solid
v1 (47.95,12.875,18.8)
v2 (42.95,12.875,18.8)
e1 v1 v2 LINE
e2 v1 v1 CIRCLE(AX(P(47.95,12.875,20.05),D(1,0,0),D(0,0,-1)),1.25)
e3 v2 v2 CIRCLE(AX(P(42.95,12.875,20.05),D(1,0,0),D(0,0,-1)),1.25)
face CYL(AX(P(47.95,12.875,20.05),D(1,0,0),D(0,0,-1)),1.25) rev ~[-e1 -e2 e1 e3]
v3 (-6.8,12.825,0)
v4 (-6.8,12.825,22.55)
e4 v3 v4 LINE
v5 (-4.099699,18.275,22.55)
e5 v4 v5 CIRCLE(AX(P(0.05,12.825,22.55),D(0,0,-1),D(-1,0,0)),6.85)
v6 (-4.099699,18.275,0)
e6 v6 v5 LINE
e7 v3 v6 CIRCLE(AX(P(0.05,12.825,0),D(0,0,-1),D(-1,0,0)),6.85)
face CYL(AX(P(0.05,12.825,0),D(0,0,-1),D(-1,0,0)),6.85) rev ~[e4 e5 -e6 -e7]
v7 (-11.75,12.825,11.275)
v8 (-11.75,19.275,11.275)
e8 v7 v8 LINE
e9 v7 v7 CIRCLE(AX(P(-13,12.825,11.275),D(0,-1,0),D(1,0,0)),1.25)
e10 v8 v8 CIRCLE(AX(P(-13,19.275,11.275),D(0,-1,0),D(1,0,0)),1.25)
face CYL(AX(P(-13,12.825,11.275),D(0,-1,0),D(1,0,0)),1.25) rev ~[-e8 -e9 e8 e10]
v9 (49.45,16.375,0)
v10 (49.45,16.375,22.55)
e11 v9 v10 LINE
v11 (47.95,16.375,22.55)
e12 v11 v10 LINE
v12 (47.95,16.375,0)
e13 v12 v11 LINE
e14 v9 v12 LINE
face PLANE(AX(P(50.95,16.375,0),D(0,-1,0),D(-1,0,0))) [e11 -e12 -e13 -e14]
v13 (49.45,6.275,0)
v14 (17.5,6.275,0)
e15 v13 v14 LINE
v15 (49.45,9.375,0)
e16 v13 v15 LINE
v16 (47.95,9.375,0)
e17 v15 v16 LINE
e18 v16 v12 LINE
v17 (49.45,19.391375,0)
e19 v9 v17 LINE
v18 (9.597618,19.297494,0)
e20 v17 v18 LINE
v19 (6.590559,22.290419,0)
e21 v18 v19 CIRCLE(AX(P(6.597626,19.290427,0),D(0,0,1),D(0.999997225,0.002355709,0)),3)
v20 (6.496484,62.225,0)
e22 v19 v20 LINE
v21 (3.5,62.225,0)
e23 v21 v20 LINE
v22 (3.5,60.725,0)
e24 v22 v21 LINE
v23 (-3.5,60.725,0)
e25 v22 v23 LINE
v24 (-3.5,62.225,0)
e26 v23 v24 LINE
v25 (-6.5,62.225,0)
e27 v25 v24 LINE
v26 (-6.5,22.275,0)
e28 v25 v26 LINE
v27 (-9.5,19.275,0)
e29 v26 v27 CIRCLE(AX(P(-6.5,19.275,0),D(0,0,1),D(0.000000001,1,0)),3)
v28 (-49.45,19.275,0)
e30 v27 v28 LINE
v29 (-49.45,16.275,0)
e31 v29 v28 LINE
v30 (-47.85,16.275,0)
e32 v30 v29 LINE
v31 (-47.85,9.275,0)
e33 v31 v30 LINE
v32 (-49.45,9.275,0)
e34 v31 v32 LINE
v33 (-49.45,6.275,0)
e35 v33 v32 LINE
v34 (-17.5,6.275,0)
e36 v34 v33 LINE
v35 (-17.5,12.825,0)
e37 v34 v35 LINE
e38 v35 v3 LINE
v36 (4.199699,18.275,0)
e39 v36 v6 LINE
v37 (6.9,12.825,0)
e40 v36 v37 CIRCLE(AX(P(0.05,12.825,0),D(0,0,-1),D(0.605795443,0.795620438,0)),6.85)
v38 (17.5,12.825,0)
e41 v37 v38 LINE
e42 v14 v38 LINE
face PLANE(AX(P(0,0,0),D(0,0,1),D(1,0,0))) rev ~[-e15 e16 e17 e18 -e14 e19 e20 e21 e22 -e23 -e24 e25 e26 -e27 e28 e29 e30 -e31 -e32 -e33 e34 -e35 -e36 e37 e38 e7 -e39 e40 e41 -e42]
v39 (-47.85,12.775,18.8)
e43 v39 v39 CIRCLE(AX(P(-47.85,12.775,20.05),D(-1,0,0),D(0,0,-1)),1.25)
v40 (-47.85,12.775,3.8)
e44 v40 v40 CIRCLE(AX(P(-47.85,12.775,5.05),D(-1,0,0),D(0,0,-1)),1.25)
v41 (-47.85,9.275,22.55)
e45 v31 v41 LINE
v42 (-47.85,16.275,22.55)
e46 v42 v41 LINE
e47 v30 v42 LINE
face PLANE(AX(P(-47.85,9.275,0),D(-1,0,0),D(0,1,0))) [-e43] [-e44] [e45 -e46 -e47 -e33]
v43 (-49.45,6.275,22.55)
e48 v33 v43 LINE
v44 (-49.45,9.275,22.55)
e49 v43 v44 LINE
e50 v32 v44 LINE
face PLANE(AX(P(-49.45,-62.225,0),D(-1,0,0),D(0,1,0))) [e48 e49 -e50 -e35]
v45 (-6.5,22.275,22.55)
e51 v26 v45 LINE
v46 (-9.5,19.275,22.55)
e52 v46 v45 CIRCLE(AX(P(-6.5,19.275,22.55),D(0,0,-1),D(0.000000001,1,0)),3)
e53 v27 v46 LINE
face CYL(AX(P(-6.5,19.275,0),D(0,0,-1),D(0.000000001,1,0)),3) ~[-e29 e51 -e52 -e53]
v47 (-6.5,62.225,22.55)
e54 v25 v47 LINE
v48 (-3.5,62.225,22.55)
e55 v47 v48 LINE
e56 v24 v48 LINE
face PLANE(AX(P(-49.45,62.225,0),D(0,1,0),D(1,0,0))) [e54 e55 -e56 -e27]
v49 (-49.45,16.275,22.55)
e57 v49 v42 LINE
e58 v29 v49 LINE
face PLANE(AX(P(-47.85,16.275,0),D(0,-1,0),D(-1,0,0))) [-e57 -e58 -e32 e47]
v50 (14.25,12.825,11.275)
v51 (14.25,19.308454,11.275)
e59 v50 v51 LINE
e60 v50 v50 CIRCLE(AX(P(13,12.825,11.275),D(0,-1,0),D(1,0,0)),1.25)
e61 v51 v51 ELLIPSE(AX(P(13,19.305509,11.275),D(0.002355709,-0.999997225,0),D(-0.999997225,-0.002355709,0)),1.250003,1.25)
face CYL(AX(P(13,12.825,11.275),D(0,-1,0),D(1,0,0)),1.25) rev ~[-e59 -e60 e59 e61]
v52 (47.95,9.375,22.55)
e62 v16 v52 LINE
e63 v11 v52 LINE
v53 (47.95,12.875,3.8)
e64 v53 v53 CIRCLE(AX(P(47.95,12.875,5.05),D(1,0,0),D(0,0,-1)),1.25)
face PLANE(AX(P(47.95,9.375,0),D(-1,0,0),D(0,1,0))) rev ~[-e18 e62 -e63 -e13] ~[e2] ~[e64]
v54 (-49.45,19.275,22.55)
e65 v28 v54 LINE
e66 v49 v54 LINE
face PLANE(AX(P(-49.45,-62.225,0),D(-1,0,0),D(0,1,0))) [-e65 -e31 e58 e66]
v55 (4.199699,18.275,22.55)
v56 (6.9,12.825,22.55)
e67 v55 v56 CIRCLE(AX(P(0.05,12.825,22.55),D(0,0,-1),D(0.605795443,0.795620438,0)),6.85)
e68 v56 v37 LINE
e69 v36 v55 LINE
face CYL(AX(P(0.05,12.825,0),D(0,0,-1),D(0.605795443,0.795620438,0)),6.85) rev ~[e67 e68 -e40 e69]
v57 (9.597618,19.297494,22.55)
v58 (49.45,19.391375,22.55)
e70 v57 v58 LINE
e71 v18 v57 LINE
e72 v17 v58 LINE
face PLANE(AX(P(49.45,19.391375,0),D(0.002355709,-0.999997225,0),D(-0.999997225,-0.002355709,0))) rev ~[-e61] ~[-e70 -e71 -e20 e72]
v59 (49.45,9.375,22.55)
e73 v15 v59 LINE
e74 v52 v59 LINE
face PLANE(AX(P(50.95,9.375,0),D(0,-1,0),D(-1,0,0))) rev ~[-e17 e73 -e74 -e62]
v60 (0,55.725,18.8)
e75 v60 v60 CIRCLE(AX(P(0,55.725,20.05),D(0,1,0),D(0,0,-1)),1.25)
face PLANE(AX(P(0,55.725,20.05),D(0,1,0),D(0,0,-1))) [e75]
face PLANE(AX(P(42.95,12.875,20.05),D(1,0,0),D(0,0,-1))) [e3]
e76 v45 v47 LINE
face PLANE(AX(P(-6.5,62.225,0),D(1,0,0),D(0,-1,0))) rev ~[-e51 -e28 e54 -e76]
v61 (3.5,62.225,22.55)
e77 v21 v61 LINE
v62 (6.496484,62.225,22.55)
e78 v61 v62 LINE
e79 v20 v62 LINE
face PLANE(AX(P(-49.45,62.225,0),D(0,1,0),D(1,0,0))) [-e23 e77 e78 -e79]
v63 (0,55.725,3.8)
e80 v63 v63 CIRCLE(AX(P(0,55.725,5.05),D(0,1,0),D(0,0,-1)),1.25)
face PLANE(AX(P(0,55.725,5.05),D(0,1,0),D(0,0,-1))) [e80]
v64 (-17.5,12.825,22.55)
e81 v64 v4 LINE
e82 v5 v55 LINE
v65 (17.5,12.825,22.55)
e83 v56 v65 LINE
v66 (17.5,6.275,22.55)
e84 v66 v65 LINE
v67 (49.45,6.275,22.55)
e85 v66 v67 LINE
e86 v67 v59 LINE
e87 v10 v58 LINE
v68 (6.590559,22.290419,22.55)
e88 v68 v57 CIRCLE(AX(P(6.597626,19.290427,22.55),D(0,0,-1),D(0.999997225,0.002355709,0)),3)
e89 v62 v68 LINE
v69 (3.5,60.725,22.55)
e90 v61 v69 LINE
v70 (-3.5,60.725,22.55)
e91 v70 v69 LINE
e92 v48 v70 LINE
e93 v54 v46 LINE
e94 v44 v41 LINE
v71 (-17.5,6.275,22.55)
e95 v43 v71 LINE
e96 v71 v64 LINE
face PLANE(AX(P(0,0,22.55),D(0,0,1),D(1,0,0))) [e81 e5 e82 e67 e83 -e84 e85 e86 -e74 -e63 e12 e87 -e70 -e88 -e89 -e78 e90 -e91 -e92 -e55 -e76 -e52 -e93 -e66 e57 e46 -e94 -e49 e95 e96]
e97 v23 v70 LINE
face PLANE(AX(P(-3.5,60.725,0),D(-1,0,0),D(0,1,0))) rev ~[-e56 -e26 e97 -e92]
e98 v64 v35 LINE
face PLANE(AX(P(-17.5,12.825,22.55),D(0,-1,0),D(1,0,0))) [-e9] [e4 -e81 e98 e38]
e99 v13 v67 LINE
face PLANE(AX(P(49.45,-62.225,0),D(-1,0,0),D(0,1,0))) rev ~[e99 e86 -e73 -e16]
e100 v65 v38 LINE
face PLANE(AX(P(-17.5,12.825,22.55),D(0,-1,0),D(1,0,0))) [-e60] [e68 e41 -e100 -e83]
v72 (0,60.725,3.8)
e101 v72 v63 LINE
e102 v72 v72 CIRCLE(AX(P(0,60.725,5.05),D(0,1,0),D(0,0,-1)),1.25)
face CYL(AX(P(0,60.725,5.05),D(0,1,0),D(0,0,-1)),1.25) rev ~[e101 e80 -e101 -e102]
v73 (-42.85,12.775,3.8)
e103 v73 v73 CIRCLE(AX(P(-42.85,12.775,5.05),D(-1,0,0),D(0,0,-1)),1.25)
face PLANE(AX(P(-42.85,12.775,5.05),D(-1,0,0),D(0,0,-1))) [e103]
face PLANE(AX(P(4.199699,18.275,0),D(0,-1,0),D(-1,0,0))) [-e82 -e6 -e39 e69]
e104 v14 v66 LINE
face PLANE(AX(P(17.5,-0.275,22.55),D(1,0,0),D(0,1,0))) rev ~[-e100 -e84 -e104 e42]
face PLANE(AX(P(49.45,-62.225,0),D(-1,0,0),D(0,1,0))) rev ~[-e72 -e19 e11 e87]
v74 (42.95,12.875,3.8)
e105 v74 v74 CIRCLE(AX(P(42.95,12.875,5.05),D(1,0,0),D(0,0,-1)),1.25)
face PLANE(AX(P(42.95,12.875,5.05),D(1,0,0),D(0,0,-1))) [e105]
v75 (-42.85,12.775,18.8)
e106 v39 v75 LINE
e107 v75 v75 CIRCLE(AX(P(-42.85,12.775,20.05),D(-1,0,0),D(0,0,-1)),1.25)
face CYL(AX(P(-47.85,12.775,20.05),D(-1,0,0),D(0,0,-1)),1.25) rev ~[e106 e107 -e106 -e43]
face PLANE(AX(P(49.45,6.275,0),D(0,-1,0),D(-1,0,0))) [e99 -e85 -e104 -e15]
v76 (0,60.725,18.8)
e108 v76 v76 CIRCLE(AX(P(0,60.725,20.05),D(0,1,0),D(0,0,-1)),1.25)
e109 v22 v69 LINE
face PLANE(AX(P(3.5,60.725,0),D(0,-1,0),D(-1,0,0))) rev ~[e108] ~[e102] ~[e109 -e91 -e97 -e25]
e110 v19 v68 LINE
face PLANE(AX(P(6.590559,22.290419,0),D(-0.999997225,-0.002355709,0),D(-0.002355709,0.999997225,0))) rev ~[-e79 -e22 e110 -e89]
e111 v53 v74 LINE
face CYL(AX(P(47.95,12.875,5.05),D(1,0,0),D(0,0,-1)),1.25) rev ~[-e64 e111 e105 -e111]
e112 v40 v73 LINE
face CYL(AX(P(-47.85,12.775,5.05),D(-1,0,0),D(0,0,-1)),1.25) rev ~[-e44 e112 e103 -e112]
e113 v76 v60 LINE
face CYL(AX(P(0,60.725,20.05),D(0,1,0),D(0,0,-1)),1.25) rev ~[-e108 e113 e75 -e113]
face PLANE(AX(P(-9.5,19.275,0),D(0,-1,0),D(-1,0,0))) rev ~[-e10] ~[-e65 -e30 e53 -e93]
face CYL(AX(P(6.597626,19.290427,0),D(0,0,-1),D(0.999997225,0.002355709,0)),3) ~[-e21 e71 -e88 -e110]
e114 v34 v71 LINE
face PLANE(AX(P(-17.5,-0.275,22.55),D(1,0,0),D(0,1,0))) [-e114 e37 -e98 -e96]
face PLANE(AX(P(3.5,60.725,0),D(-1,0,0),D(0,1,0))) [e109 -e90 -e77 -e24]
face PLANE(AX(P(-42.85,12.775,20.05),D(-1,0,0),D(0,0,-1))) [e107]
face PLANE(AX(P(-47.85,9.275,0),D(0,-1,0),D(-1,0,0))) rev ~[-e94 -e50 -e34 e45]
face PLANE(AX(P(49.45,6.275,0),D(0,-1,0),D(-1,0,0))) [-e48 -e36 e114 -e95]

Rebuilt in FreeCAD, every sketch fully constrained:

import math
import FreeCAD as App
import Part
import Sketcher


def add_polygon(sketch, points):
    """Adds a closed chain of lines whose ends are joined by coincident constraints."""
    first, n = sketch.GeometryCount, len(points)
    for a, b in zip(points, points[1:] + points[:1]):
        sketch.addGeometry(Part.LineSegment(App.Vector(*a, 0), App.Vector(*b, 0)), False)
    for i in range(n):
        sketch.addConstraint(Sketcher.Constraint("Coincident", first + i, 2, first + (i + 1) % n, 1))

doc = App.newDocument("Part")
params = doc.addObject("Spreadsheet::Sheet", "Params")
for row, (alias, value) in enumerate([
    ("sketch1_width", "98.9 mm"),
    ("sketch1_height", "124.45 mm"),
    ("pad1_length", "22.55 mm"),
    ("sketch2_width", "7 mm"),
    ("sketch2_width2", "3 mm"),
    ("pocket1_length", "63 mm"),
    ("sketch3_radius", "6.85 mm"),
    ("pocket2_length", "63 mm"),
    ("sketch4_radius", "3 mm"),
    ("sketch4_width", "98.9 mm"),
    ("sketch4_height", "68.5 mm"),
    ("sketch4_width2", "42.95 mm"),
    ("pocket3_length", "63 mm"),
    ("sketch5_width", "22.55 mm"),
    ("pocket4_length", "63 mm"),
    ("sketch6_width", "35 mm"),
    ("sketch6_height", "13.1 mm"),
    ("sketch7_diameter", "2.5 mm"),
    ("pocket6_length", "10 mm"),
    ("sketch8_diameter", "2.5 mm"),
    ("pocket7_length", "5 mm"),
], start=1):
    params.set(f"A{row}", alias)
    params.set(f"B{row}", "=" + value)
    params.setAlias(f"B{row}", alias)

body = doc.addObject("PartDesign::Body", "Body")
body.AllowCompound = True

# Sketch on XY plane
sketch1 = body.newObject("Sketcher::SketchObject", "Sketch")
sketch1.AttachmentSupport = (doc.getObject("XY_Plane"), [""])
sketch1.MapMode = "FlatFace"
add_polygon(sketch1, [(-49, 62), (-49, -62), (49, -62), (49, 62)])  # lines 0-3
sketch1.addConstraint([
    Sketcher.Constraint("Vertical", 0),
    Sketcher.Constraint("Horizontal", 1),
    Sketcher.Constraint("Vertical", 2),
    Sketcher.Constraint("Horizontal", 3),
    Sketcher.Constraint("Symmetric", 0, 2, 2, 2, -1, 1),
    Sketcher.Constraint("DistanceX", 1, 1, 1, 2, 98.9),
    Sketcher.Constraint("DistanceY", 0, 2, 0, 1, 124.45),
])
sketch1.setExpression("Constraints[9]", "Params.sketch1_width")
sketch1.setExpression("Constraints[10]", "Params.sketch1_height")
pad1 = body.newObject("PartDesign::Pad", "Pad")
pad1.Profile = sketch1
pad1.setExpression("Length", "Params.pad1_length")

# Sketch on XY plane
sketch2 = body.newObject("Sketcher::SketchObject", "Sketch001")
sketch2.AttachmentSupport = (doc.getObject("XY_Plane"), [""])
sketch2.MapMode = "FlatFace"
add_polygon(sketch2, [(3.5, 63.7), (3.5, 60.7), (-3.5, 60.7), (-3.5, 63.7)])  # lines 0-3
add_polygon(sketch2, [(-47.9, 16.3), (-47.9, 9.3), (-50.9, 9.3), (-50.9, 16.3)])  # lines 4-7
add_polygon(sketch2, [(51, 16.4), (51, 9.4), (48, 9.4), (48, 16.4)])  # lines 8-11
sketch2.addConstraint([
    Sketcher.Constraint("Vertical", 0),
    Sketcher.Constraint("Horizontal", 1),
    Sketcher.Constraint("Vertical", 2),
    Sketcher.Constraint("Horizontal", 3),
    Sketcher.Constraint("Vertical", 4),
    Sketcher.Constraint("Horizontal", 5),
    Sketcher.Constraint("Vertical", 6),
    Sketcher.Constraint("Horizontal", 7),
    Sketcher.Constraint("Vertical", 8),
    Sketcher.Constraint("Horizontal", 9),
    Sketcher.Constraint("Vertical", 10),
    Sketcher.Constraint("Horizontal", 11),
    Sketcher.Constraint("Equal", 7, 9),
    Sketcher.Constraint("Equal", 11, 0),
    Sketcher.Constraint("Equal", 3, 4),
    Sketcher.Constraint("Equal", 6, 8),
    Sketcher.Constraint("DistanceX", 1, 2, 1, 1, 7.0),
    Sketcher.Constraint("DistanceX", 5, 2, 5, 1, 3.0),
    Sketcher.Constraint("DistanceX", -1, 1, 0, 2, 3.5),
    Sketcher.Constraint("DistanceX", 4, 2, 8, 2, 98.8),
    Sketcher.Constraint("DistanceY", 4, 2, 8, 2, 0.1),
    Sketcher.Constraint("DistanceX", 4, 2, -1, 1, 47.85),
    Sketcher.Constraint("DistanceY", 4, 2, 1, 2, 51.45),
    Sketcher.Constraint("DistanceY", -1, 1, 0, 2, 60.725),
])
sketch2.setExpression("Constraints[28]", "Params.sketch2_width")
sketch2.setExpression("Constraints[29]", "Params.sketch2_width2")
pocket1 = body.newObject("PartDesign::Pocket", "Pocket")
pocket1.Profile = sketch2
pocket1.setExpression("Length", "Params.pocket1_length")
pocket1.Reversed = True

# Sketch on XY plane
sketch3 = body.newObject("Sketcher::SketchObject", "Sketch002")
sketch3.AttachmentSupport = (doc.getObject("XY_Plane"), [""])
sketch3.MapMode = "FlatFace"
sketch3.addGeometry([
    Part.LineSegment(App.Vector(4, 7, 0), App.Vector(-4, 7, 0)),  # 0
    Part.ArcOfCircle(Part.Circle(App.Vector(0, 13, 0), App.Vector(0, 0, 1), 7), math.radians(180), math.radians(233)),  # 1
    Part.ArcOfCircle(Part.Circle(App.Vector(0, 13, 0), App.Vector(0, 0, 1), 7), math.radians(127), math.radians(180)),  # 2
    Part.LineSegment(App.Vector(-4, 18, 0), App.Vector(4, 18, 0)),  # 3
    Part.ArcOfCircle(Part.Circle(App.Vector(0, 13, 0), App.Vector(0, 0, 1), 7), math.radians(-53), math.radians(53)),  # 4
], False)
sketch3.addConstraint([
    Sketcher.Constraint("Coincident", 0, 2, 1, 2),
    Sketcher.Constraint("Tangent", 1, 1, 2, 2),
    Sketcher.Constraint("Coincident", 2, 1, 3, 1),
    Sketcher.Constraint("Coincident", 3, 2, 4, 2),
    Sketcher.Constraint("Coincident", 4, 1, 0, 1),
    Sketcher.Constraint("Horizontal", 0),
    Sketcher.Constraint("Horizontal", 3),
    Sketcher.Constraint("Coincident", 4, 3, 1, 3),
    Sketcher.Constraint("Equal", 1, 2),
    Sketcher.Constraint("Equal", 2, 4),
    Sketcher.Constraint("Horizontal", 4, 3, 1, 1),
    Sketcher.Constraint("Vertical", 0, 2, 2, 1),
    Sketcher.Constraint("Radius", 1, 6.85),
    Sketcher.Constraint("DistanceX", 1, 1, -1, 1, 6.8),
    Sketcher.Constraint("DistanceY", 0, 2, 2, 1, 10.9),
    Sketcher.Constraint("DistanceY", -1, 1, 1, 3, 12.825),
])
sketch3.setExpression("Constraints[12]", "Params.sketch3_radius")
pocket2 = body.newObject("PartDesign::Pocket", "Pocket001")
pocket2.Profile = sketch3
pocket2.setExpression("Length", "Params.pocket2_length")
pocket2.Reversed = True

# Sketch on XY plane
sketch4 = body.newObject("Sketcher::SketchObject", "Sketch003")
sketch4.AttachmentSupport = (doc.getObject("XY_Plane"), [""])
sketch4.MapMode = "FlatFace"
sketch4.addGeometry(Part.LineSegment(App.Vector(-49.5, 19.3, 0), App.Vector(-49.5, 62.2, 0)), False)  # 0
sketch4.addGeometry(Part.LineSegment(App.Vector(-49.5, 62.2, 0), App.Vector(-6.5, 62.2, 0)), False)  # 1
sketch4.addGeometry(Part.LineSegment(App.Vector(-6.5, 62.2, 0), App.Vector(-6.5, 22.3, 0)), False)  # 2
sketch4.addGeometry(Part.ArcOfCircle(Part.Circle(App.Vector(-6.5, 19.3, 0), App.Vector(0, 0, 1), 3), math.radians(90), math.radians(180)), False)  # 3
sketch4.addGeometry(Part.LineSegment(App.Vector(-9.5, 19.3, 0), App.Vector(-49.5, 19.3, 0)), False)  # 4
sketch4.addGeometry(Part.LineSegment(App.Vector(49.5, 60.8, 0), App.Vector(49.5, 19.4, 0)), False)  # 5
sketch4.addGeometry(Part.LineSegment(App.Vector(49.5, 19.4, 0), App.Vector(9.6, 19.3, 0)), False)  # 6
sketch4.addGeometry(Part.ArcOfCircle(Part.Circle(App.Vector(6.6, 19.3, 0), App.Vector(0, 0, 1), 3), math.radians(0), math.radians(90)), False)  # 7
sketch4.addGeometry(Part.LineSegment(App.Vector(6.6, 22.3, 0), App.Vector(6.5, 62.2, 0)), False)  # 8
sketch4.addGeometry(Part.LineSegment(App.Vector(6.5, 62.2, 0), App.Vector(49.4, 62.2, 0)), False)  # 9
sketch4.addGeometry(Part.LineSegment(App.Vector(49.4, 62.2, 0), App.Vector(49.5, 60.8, 0)), False)  # 10
add_polygon(sketch4, [(49.5, 6.3), (49.5, -62.2), (-49.5, -62.2), (-49.5, 6.3)])  # lines 11-14
sketch4.addConstraint([
    Sketcher.Constraint("Coincident", 0, 2, 1, 1),
    Sketcher.Constraint("Coincident", 1, 2, 2, 1),
    Sketcher.Constraint("Coincident", 2, 2, 3, 1),
    Sketcher.Constraint("Coincident", 3, 2, 4, 1),
    Sketcher.Constraint("Coincident", 4, 2, 0, 1),
    Sketcher.Constraint("Coincident", 5, 2, 6, 1),
    Sketcher.Constraint("Coincident", 6, 2, 7, 1),
    Sketcher.Constraint("Coincident", 7, 2, 8, 1),
    Sketcher.Constraint("Coincident", 8, 2, 9, 1),
    Sketcher.Constraint("Coincident", 9, 2, 10, 1),
    Sketcher.Constraint("Coincident", 10, 2, 5, 1),
    Sketcher.Constraint("Vertical", 0),
    Sketcher.Constraint("Horizontal", 1),
    Sketcher.Constraint("Vertical", 2),
    Sketcher.Constraint("Horizontal", 4),
    Sketcher.Constraint("Vertical", 5),
    Sketcher.Constraint("Horizontal", 9),
    Sketcher.Constraint("Vertical", 11),
    Sketcher.Constraint("Horizontal", 12),
    Sketcher.Constraint("Vertical", 13),
    Sketcher.Constraint("Horizontal", 14),
    Sketcher.Constraint("Equal", 3, 7),
    Sketcher.Constraint("Symmetric", 0, 2, 11, 2, -1, 1),
    Sketcher.Constraint("Perpendicular", 6, 8),
    Sketcher.Constraint("Parallel", 8, 10),
    Sketcher.Constraint("Horizontal", 1, 2, 8, 2),
    Sketcher.Constraint("Vertical", 3, 3, 1, 2),
    Sketcher.Constraint("Vertical", 10, 2, 11, 2),
    Sketcher.Constraint("Vertical", 4, 2, 12, 2),
    Sketcher.Constraint("Equal", 1, 0),
    Sketcher.Constraint("Equal", 4, 2),
    Sketcher.Constraint("Radius", 3, 3.0),
    Sketcher.Constraint("DistanceX", 12, 2, 12, 1, 98.9),
    Sketcher.Constraint("DistanceY", 11, 2, 11, 1, 68.5),
    Sketcher.Constraint("DistanceY", 13, 2, 4, 2, 13.0),
    Sketcher.Constraint("DistanceX", 1, 1, 1, 2, 42.95),
    Sketcher.Constraint("DistanceX", 9, 1, 9, 2, 42.950119),
    Sketcher.Constraint("DistanceY", 5, 2, 5, 1, 41.39187),
    Sketcher.Constraint("Distance", 10, 1.441759),
    Sketcher.Constraint("DistanceX", -1, 1, 7, 2, 6.590559),
    Sketcher.Constraint("DistanceY", -1, 1, 7, 2, 22.290419),
    Sketcher.Constraint("DistanceX", 7, 2, 6, 2, 3.007059),
])
sketch4.setExpression("Constraints[35]", "Params.sketch4_radius")
sketch4.setExpression("Constraints[36]", "Params.sketch4_width")
sketch4.setExpression("Constraints[37]", "Params.sketch4_height")
sketch4.setExpression("Constraints[39]", "Params.sketch4_width2")
pocket3 = body.newObject("PartDesign::Pocket", "Pocket002")
pocket3.Profile = sketch4
pocket3.setExpression("Length", "Params.pocket3_length")
pocket3.Reversed = True

# Sketch on an angled plane
sketch5 = body.newObject("Sketcher::SketchObject", "Sketch004")
sketch5.Placement = App.Placement(App.Vector(49.592913, 0.116827, 0), App.Rotation(App.Vector(0, 0, 1), App.Vector(-0.002355709, 0.999997225, 0), App.Vector(-0.999997225, -0.002355709, 0), "ZXY"))
add_polygon(sketch5, [(0, 62.1), (0, 60.7), (22.6, 60.7), (22.6, 62.1)])  # lines 0-3
sketch5.addConstraint([
    Sketcher.Constraint("Vertical", 0),
    Sketcher.Constraint("Horizontal", 1),
    Sketcher.Constraint("Vertical", 2),
    Sketcher.Constraint("Horizontal", 3),
    Sketcher.Constraint("PointOnObject", 0, 2, -2),
    Sketcher.Constraint("DistanceX", 1, 1, 1, 2, 22.55),
    Sketcher.Constraint("DistanceY", 0, 2, 0, 1, 1.441759),
    Sketcher.Constraint("DistanceY", -1, 1, 0, 2, 60.666586),
])
sketch5.setExpression("Constraints[9]", "Params.sketch5_width")
pocket4 = body.newObject("PartDesign::Pocket", "Pocket003")
pocket4.Profile = sketch5
pocket4.setExpression("Length", "Params.pocket4_length")

# Sketch on XY plane
sketch6 = body.newObject("Sketcher::SketchObject", "Sketch005")
sketch6.AttachmentSupport = (doc.getObject("XY_Plane"), [""])
sketch6.MapMode = "FlatFace"
sketch6.AttachmentOffset = App.Placement(App.Vector(0, 0, 22.55), App.Rotation())
add_polygon(sketch6, [(-18, 13), (-18, 0), (18, 0), (18, 13)])  # lines 0-3
sketch6.addConstraint([
    Sketcher.Constraint("Vertical", 0),
    Sketcher.Constraint("Horizontal", 1),
    Sketcher.Constraint("Vertical", 2),
    Sketcher.Constraint("Horizontal", 3),
    Sketcher.Constraint("DistanceX", 1, 1, 1, 2, 35.0),
    Sketcher.Constraint("DistanceY", 0, 2, 0, 1, 13.1),
    Sketcher.Constraint("DistanceX", 0, 2, -1, 1, 17.5),
    Sketcher.Constraint("DistanceY", 0, 2, -1, 1, 0.275),
])
sketch6.setExpression("Constraints[8]", "Params.sketch6_width")
sketch6.setExpression("Constraints[9]", "Params.sketch6_height")
pocket5 = body.newObject("PartDesign::Pocket", "Pocket004")
pocket5.Profile = sketch6
pocket5.Type = "ThroughAll"

# Sketch on XZ plane
sketch7 = body.newObject("Sketcher::SketchObject", "Sketch006")
sketch7.AttachmentSupport = (doc.getObject("XZ_Plane"), [""])
sketch7.MapMode = "FlatFace"
sketch7.AttachmentOffset = App.Placement(App.Vector(0, 0, -12.825), App.Rotation())
sketch7.addGeometry([
    Part.Circle(App.Vector(13, 11.3, 0), App.Vector(0, 0, 1), 1.2),
    Part.Circle(App.Vector(-13, 11.3, 0), App.Vector(0, 0, 1), 1.2),
], False)
sketch7.addConstraint([
    Sketcher.Constraint("Equal", 0, 1),
    Sketcher.Constraint("Symmetric", 0, 3, 1, 3, -2),
    Sketcher.Constraint("Diameter", 0, 2.5),
    Sketcher.Constraint("DistanceX", -1, 1, 0, 3, 13.0),
    Sketcher.Constraint("DistanceY", -1, 1, 0, 3, 11.275),
])
sketch7.setExpression("Constraints[2]", "Params.sketch7_diameter")
pocket6 = body.newObject("PartDesign::Pocket", "Pocket005")
pocket6.Profile = sketch7
pocket6.setExpression("Length", "Params.pocket6_length")

# Sketch on YZ plane
sketch8 = body.newObject("Sketcher::SketchObject", "Sketch007")
sketch8.AttachmentSupport = (doc.getObject("YZ_Plane"), [""])
sketch8.MapMode = "FlatFace"
sketch8.AttachmentOffset = App.Placement(App.Vector(0, 0, 47.95), App.Rotation())
sketch8.addGeometry([
    Part.Circle(App.Vector(12.9, 20.1, 0), App.Vector(0, 0, 1), 1.2),
    Part.Circle(App.Vector(12.9, 5, 0), App.Vector(0, 0, 1), 1.2),
], False)
sketch8.addConstraint([
    Sketcher.Constraint("Equal", 0, 1),
    Sketcher.Constraint("Vertical", 0, 3, 1, 3),
    Sketcher.Constraint("Diameter", 0, 2.5),
    Sketcher.Constraint("DistanceY", 1, 3, 0, 3, 15.0),
    Sketcher.Constraint("DistanceY", -1, 1, 0, 3, 20.05),
    Sketcher.Constraint("DistanceX", -1, 1, 0, 3, 12.875),
])
sketch8.setExpression("Constraints[2]", "Params.sketch8_diameter")
pocket7 = body.newObject("PartDesign::Pocket", "Pocket006")
pocket7.Profile = sketch8
pocket7.setExpression("Length", "Params.pocket7_length")
doc.recompute()

datumline = body.newObject("PartDesign::Line", "DatumLine")
datumline.Placement = App.Placement(App.Vector(0.05, 12.825, 0), App.Rotation(App.Vector(0, 0, 1), App.Vector(0, 0, 1)))
polarpattern = body.newObject("PartDesign::PolarPattern", "PolarPattern")
polarpattern.Originals = [pocket7]
polarpattern.Axis = (datumline, [""])
polarpattern.Angle = 360
polarpattern.Occurrences = 4
body.Tip = polarpattern

doc.recompute()
